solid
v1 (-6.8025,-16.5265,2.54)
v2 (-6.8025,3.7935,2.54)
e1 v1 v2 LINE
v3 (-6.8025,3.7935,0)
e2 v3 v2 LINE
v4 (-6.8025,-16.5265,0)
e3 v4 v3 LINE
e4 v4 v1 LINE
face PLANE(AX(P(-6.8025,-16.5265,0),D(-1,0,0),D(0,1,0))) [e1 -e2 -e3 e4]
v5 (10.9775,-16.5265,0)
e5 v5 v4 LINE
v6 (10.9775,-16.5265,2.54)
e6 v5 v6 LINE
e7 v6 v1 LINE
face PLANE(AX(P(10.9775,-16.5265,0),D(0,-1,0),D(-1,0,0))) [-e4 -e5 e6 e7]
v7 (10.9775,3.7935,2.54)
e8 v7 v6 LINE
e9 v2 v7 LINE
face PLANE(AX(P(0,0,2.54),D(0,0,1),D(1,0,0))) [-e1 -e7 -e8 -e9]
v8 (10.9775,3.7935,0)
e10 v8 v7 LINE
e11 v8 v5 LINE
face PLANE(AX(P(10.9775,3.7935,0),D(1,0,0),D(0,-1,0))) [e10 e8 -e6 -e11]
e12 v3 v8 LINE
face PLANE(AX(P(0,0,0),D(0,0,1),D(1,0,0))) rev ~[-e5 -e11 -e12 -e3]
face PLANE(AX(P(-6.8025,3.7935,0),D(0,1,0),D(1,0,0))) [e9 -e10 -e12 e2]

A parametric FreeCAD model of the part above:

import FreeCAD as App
import Part
import Sketcher
from FreeCAD import Vector
Q = App.Units.Quantity


def add_polygon(sketch, points):
    """Adds a closed chain of lines whose ends are joined by coincident constraints."""
    first, n = sketch.GeometryCount, len(points)
    for a, b in zip(points, points[1:] + points[:1]):
        sketch.addGeometry(Part.LineSegment(App.Vector(*a, 0), App.Vector(*b, 0)), False)
    for i in range(n):
        sketch.addConstraint(Sketcher.Constraint("Coincident", first + i, 2, first + (i + 1) % n, 1))

doc = App.newDocument("Part")
body = doc.addObject("PartDesign::Body", "Body")

sketch1 = doc.addObject("Sketcher::SketchObject", "Sketch")
body.addObject(sketch1)
sketch1.AttachmentSupport = (doc.XY_Plane, [""])
sketch1.MapMode = "FlatFace"
add_polygon(sketch1, [(11, 4), (-7, 4), (-7, -17), (11, -17)])
sketch1.addConstraint(Sketcher.Constraint("Horizontal", 0))
sketch1.addConstraint(Sketcher.Constraint("Vertical", 1))
sketch1.addConstraint(Sketcher.Constraint("Horizontal", 2))
sketch1.addConstraint(Sketcher.Constraint("Vertical", 3))
sketch1.addConstraint(Sketcher.Constraint("DistanceX", 0, 2, 0, 1, Q("0.7 in")))
sketch1.addConstraint(Sketcher.Constraint("DistanceY", 1, 2, 1, 1, Q("0.8 in")))
sketch1.addConstraint(Sketcher.Constraint("DistanceX", 0, 2, -1, 1, Q("6.8025 mm")))
sketch1.addConstraint(Sketcher.Constraint("DistanceY", -1, 1, 0, 2, Q("3.7935 mm")))
pad1 = doc.addObject("PartDesign::Pad", "Pad")
body.addObject(pad1)
pad1.Profile = sketch1
pad1.Length = Q("0.1 in")

doc.recompute()
